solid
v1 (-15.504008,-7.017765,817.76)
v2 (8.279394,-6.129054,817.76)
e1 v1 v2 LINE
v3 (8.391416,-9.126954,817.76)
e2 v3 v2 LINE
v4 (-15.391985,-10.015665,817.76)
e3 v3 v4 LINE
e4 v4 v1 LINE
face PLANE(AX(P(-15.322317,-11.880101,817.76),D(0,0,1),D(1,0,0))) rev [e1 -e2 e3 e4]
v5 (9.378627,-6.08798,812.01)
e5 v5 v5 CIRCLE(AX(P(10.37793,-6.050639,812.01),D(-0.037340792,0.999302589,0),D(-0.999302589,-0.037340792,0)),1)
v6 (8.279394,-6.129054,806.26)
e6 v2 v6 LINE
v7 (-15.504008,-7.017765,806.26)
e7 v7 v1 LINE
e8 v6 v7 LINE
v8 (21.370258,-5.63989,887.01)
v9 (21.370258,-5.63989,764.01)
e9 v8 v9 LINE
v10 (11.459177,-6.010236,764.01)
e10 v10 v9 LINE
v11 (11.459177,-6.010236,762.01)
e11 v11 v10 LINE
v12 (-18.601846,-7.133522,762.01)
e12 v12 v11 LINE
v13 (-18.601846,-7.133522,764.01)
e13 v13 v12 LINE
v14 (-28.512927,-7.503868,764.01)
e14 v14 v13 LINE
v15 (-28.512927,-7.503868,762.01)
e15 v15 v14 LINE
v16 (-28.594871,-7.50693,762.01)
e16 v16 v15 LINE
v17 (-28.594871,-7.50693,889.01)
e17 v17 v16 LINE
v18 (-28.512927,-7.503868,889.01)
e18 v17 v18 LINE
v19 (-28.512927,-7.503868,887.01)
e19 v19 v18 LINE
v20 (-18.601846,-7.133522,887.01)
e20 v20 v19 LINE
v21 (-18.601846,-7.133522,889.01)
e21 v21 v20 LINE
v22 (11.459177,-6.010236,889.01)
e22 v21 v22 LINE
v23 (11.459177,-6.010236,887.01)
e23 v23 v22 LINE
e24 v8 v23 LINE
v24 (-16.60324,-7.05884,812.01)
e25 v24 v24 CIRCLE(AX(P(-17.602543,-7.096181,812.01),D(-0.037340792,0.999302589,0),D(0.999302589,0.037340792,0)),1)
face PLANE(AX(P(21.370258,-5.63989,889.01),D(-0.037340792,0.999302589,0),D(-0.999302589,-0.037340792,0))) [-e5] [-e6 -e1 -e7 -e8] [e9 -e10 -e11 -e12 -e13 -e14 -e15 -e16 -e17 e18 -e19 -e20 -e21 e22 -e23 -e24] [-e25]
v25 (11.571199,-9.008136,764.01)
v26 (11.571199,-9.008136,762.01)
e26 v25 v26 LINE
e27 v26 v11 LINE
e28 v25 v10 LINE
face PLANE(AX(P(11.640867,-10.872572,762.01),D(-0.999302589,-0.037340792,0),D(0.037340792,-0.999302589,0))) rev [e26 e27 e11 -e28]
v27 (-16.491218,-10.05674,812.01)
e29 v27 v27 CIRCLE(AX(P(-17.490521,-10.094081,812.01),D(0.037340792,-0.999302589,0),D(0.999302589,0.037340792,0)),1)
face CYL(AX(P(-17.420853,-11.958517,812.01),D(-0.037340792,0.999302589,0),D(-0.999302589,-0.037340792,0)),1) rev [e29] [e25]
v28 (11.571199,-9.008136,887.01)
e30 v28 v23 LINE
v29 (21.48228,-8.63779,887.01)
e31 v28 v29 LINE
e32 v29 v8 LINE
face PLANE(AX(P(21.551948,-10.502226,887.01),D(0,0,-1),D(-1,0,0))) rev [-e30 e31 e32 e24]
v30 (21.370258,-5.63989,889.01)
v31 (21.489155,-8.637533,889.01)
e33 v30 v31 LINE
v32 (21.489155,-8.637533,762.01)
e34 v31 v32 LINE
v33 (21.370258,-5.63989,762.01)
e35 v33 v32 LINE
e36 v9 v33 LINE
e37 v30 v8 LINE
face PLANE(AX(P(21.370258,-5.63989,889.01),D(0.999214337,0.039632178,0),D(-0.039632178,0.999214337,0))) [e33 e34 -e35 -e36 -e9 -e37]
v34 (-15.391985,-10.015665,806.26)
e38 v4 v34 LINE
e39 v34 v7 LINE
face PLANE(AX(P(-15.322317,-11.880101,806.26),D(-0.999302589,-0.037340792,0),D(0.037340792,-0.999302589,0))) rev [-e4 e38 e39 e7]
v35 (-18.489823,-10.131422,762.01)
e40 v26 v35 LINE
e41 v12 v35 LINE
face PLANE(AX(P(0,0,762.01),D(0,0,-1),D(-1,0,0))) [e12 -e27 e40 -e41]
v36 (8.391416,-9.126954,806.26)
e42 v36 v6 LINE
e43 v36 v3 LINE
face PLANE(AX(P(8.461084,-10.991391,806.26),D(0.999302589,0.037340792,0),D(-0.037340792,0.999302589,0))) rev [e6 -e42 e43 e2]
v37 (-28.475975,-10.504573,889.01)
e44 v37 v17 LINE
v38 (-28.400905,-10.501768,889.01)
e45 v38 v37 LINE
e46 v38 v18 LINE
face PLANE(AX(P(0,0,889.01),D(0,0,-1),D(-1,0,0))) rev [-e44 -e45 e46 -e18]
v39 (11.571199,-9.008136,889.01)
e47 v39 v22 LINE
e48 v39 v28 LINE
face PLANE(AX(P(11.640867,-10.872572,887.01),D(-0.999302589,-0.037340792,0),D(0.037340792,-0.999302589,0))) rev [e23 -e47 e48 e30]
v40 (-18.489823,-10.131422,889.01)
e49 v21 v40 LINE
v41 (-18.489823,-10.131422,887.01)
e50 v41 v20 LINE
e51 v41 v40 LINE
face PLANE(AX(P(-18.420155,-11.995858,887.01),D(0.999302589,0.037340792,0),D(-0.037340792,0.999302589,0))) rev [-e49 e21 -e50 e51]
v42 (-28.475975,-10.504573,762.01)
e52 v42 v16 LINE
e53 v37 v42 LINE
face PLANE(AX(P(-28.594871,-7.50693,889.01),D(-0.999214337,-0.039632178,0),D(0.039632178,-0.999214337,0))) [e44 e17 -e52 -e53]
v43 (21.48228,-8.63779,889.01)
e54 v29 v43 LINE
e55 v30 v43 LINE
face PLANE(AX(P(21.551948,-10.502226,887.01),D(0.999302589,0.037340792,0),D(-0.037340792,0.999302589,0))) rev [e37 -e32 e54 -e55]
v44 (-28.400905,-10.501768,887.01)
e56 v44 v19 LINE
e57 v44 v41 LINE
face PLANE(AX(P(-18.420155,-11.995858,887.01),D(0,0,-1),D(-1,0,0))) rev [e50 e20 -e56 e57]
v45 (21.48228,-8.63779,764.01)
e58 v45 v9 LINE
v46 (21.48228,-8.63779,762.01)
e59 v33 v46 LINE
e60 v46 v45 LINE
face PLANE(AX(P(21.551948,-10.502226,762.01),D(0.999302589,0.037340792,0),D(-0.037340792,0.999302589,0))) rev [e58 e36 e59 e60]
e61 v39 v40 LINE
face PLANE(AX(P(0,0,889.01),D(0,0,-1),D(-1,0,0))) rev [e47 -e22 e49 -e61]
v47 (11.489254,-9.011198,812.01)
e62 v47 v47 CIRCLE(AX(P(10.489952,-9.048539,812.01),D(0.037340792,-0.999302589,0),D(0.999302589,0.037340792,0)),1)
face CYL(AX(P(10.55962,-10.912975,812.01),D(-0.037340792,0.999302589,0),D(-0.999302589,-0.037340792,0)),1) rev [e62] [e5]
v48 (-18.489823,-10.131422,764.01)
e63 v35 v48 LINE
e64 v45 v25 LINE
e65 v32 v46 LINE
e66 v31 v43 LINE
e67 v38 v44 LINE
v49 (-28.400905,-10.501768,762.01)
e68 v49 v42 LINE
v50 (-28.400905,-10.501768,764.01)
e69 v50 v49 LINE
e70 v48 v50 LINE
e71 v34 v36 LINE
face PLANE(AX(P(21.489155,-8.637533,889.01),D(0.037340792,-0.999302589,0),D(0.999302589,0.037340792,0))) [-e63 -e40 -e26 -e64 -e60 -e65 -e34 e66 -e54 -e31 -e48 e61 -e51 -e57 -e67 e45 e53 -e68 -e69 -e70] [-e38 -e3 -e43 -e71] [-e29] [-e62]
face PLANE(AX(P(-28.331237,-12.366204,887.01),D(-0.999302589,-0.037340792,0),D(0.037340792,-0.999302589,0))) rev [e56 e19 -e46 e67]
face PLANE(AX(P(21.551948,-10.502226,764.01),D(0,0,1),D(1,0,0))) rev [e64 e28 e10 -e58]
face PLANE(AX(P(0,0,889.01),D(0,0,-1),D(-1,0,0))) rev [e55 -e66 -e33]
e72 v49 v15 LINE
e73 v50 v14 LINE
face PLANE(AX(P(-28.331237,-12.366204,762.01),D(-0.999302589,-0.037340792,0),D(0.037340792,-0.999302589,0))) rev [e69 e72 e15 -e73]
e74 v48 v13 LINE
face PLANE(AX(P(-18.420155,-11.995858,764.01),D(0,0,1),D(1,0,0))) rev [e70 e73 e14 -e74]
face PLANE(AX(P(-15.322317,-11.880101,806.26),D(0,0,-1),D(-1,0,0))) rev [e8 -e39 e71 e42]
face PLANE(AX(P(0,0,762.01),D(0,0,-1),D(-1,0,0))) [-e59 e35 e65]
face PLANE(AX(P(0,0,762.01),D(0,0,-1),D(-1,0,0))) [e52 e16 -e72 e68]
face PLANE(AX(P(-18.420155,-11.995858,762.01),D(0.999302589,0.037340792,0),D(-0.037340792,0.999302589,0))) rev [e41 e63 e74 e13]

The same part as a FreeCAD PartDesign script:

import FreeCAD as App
import Part
import Sketcher

V = App.Vector


def add_polygon(sketch, points):
    """Adds a closed chain of lines whose ends are joined by coincident constraints."""
    first, n = sketch.GeometryCount, len(points)
    for a, b in zip(points, points[1:] + points[:1]):
        sketch.addGeometry(Part.LineSegment(App.Vector(*a, 0), App.Vector(*b, 0)), False)
    for i in range(n):
        sketch.addConstraint(Sketcher.Constraint("Coincident", first + i, 2, first + (i + 1) % n, 1))

doc = App.newDocument("Part")
body = doc.addObject("PartDesign::Body", "Body")

# Sketch on XY plane
sketch1 = body.newObject("Sketcher::SketchObject", "Sketch")
sketch1.AttachmentSupport = (doc.getObject("XY_Plane"), [""])
sketch1.MapMode = "FlatFace"
sketch1.AttachmentOffset = App.Placement(V(0, 0, 762.01), App.Rotation())
add_polygon(sketch1, [(-28.594871, -7.50693), (21.370258, -5.63989), (21.489155, -8.637533), (-28.475975, -10.504573)])  # lines 0-3
sketch1.addConstraint([
    Sketcher.Constraint("Parallel", 0, 2),
    Sketcher.Constraint("Parallel", 1, 3),
    Sketcher.Constraint("Distance", 0, 50.0),
    Sketcher.Constraint("Distance", 1, 3.0),
    Sketcher.Constraint("DistanceX", -1, 1, 0, 2, 21.370258),
    Sketcher.Constraint("DistanceY", 0, 2, -1, 1, 5.63989),
    Sketcher.Constraint("DistanceX", 3, 2, -1, 1, 28.594871),
    Sketcher.Constraint("DistanceX", -1, 1, 1, 2, 21.489155),
])
pad1 = body.newObject("PartDesign::Pad", "Pad")
pad1.Profile = sketch1
pad1.Length = 127

# Sketch on an angled plane
sketch2 = body.newObject("Sketcher::SketchObject", "Sketch001")
sketch2.Placement = App.Placement(V(0.240248, -6.429452, 0), App.Rotation(V(0.999302589, 0.037340792, 0), V(0, 0, -0.999999999), V(-0.037340792, 0.999302589, 0), "ZXY"))
add_polygon(sketch2, [(-28.773242, -762.009999), (-28.773242, -764.009999), (-18.855244, -764.009999), (-18.855244, -762.009999)])  # lines 0-3
add_polygon(sketch2, [(11.226758, -762.009999), (11.226758, -764.009999), (21.144756, -764.009999), (21.144756, -762.009999)])  # lines 4-7
add_polygon(sketch2, [(-28.773242, -887.009998), (-28.773242, -889.009998), (-18.855244, -889.009998), (-18.855244, -887.009998)])  # lines 8-11
add_polygon(sketch2, [(11.226758, -887.009998), (11.226758, -889.009998), (21.144756, -889.009998), (21.144756, -887.009998)])  # lines 12-15
sketch2.addConstraint([
    Sketcher.Constraint("Vertical", 0),
    Sketcher.Constraint("Horizontal", 1),
    Sketcher.Constraint("Vertical", 2),
    Sketcher.Constraint("Horizontal", 3),
    Sketcher.Constraint("Vertical", 4),
    Sketcher.Constraint("Horizontal", 5),
    Sketcher.Constraint("Vertical", 6),
    Sketcher.Constraint("Horizontal", 7),
    Sketcher.Constraint("Vertical", 8),
    Sketcher.Constraint("Horizontal", 9),
    Sketcher.Constraint("Vertical", 10),
    Sketcher.Constraint("Horizontal", 11),
    Sketcher.Constraint("Vertical", 12),
    Sketcher.Constraint("Horizontal", 13),
    Sketcher.Constraint("Vertical", 14),
    Sketcher.Constraint("Horizontal", 15),
    Sketcher.Constraint("Horizontal", 1, 2, 4, 2),
    Sketcher.Constraint("Horizontal", 3, 2, 6, 2),
    Sketcher.Constraint("Horizontal", 9, 2, 12, 2),
    Sketcher.Constraint("Horizontal", 11, 2, 14, 2),
    Sketcher.Constraint("Vertical", 3, 2, 8, 2),
    Sketcher.Constraint("Vertical", 2, 2, 9, 2),
    Sketcher.Constraint("Vertical", 7, 2, 12, 2),
    Sketcher.Constraint("Vertical", 6, 2, 13, 2),
    Sketcher.Constraint("Equal", 3, 5),
    Sketcher.Constraint("Equal", 6, 8),
    Sketcher.Constraint("DistanceY", 0, 2, 0, 1, 2.0),
    Sketcher.Constraint("DistanceX", 0, 2, 4, 2, 40.0),
    Sketcher.Constraint("DistanceY", 8, 2, 0, 2, 125.0),
    Sketcher.Constraint("DistanceX", 1, 1, 1, 2, 9.917998),
    Sketcher.Constraint("DistanceY", 0, 2, -1, 1, 764.009999),
    Sketcher.Constraint("DistanceX", 0, 2, -1, 1, 28.773242),
])
pocket1 = body.newObject("PartDesign::Pocket", "Pocket")
pocket1.Profile = sketch2
pocket1.Type = "ThroughAll"

# Sketch on an angled plane
sketch3 = body.newObject("Sketcher::SketchObject", "Sketch002")
sketch3.Placement = App.Placement(V(0.240248, -6.429452, 0), App.Rotation(V(0.999302589, 0.037340792, 0), V(0, 0, -0.999999999), V(-0.037340792, 0.999302589, 0), "ZXY"))
sketch3.addGeometry(Part.Circle(V(10.144756, -812.009999, 0), V(0, 0, 1), 1), False)  # 0
sketch3.addGeometry(Part.Circle(V(-17.855244, -812.009999, 0), V(0, 0, 1), 1), False)  # 1
add_polygon(sketch3, [(-15.755244, -806.259999), (-15.755244, -817.759999), (8.044756, -817.759999), (8.044756, -806.259999)])  # lines 2-5
sketch3.addConstraint([
    Sketcher.Constraint("Vertical", 2),
    Sketcher.Constraint("Horizontal", 3),
    Sketcher.Constraint("Vertical", 4),
    Sketcher.Constraint("Horizontal", 5),
    Sketcher.Constraint("Equal", 0, 1),
    Sketcher.Constraint("Horizontal", 0, 3, 1, 3),
    Sketcher.Constraint("Diameter", 0, 2.0),
    Sketcher.Constraint("DistanceX", 3, 1, 3, 2, 23.8),
    Sketcher.Constraint("DistanceY", 2, 2, 2, 1, 11.5),
    Sketcher.Constraint("DistanceX", 1, 3, 0, 3, 28.0),
    Sketcher.Constraint("DistanceX", 1, 3, 2, 2, 2.1),
    Sketcher.Constraint("DistanceY", 0, 3, -1, 1, 812.009999),
    Sketcher.Constraint("DistanceY", 2, 2, -1, 1, 817.759999),
    Sketcher.Constraint("DistanceX", -1, 1, 0, 3, 10.144756),
])
pocket2 = body.newObject("PartDesign::Pocket", "Pocket001")
pocket2.Profile = sketch3
pocket2.Type = "ThroughAll"

doc.recompute()
